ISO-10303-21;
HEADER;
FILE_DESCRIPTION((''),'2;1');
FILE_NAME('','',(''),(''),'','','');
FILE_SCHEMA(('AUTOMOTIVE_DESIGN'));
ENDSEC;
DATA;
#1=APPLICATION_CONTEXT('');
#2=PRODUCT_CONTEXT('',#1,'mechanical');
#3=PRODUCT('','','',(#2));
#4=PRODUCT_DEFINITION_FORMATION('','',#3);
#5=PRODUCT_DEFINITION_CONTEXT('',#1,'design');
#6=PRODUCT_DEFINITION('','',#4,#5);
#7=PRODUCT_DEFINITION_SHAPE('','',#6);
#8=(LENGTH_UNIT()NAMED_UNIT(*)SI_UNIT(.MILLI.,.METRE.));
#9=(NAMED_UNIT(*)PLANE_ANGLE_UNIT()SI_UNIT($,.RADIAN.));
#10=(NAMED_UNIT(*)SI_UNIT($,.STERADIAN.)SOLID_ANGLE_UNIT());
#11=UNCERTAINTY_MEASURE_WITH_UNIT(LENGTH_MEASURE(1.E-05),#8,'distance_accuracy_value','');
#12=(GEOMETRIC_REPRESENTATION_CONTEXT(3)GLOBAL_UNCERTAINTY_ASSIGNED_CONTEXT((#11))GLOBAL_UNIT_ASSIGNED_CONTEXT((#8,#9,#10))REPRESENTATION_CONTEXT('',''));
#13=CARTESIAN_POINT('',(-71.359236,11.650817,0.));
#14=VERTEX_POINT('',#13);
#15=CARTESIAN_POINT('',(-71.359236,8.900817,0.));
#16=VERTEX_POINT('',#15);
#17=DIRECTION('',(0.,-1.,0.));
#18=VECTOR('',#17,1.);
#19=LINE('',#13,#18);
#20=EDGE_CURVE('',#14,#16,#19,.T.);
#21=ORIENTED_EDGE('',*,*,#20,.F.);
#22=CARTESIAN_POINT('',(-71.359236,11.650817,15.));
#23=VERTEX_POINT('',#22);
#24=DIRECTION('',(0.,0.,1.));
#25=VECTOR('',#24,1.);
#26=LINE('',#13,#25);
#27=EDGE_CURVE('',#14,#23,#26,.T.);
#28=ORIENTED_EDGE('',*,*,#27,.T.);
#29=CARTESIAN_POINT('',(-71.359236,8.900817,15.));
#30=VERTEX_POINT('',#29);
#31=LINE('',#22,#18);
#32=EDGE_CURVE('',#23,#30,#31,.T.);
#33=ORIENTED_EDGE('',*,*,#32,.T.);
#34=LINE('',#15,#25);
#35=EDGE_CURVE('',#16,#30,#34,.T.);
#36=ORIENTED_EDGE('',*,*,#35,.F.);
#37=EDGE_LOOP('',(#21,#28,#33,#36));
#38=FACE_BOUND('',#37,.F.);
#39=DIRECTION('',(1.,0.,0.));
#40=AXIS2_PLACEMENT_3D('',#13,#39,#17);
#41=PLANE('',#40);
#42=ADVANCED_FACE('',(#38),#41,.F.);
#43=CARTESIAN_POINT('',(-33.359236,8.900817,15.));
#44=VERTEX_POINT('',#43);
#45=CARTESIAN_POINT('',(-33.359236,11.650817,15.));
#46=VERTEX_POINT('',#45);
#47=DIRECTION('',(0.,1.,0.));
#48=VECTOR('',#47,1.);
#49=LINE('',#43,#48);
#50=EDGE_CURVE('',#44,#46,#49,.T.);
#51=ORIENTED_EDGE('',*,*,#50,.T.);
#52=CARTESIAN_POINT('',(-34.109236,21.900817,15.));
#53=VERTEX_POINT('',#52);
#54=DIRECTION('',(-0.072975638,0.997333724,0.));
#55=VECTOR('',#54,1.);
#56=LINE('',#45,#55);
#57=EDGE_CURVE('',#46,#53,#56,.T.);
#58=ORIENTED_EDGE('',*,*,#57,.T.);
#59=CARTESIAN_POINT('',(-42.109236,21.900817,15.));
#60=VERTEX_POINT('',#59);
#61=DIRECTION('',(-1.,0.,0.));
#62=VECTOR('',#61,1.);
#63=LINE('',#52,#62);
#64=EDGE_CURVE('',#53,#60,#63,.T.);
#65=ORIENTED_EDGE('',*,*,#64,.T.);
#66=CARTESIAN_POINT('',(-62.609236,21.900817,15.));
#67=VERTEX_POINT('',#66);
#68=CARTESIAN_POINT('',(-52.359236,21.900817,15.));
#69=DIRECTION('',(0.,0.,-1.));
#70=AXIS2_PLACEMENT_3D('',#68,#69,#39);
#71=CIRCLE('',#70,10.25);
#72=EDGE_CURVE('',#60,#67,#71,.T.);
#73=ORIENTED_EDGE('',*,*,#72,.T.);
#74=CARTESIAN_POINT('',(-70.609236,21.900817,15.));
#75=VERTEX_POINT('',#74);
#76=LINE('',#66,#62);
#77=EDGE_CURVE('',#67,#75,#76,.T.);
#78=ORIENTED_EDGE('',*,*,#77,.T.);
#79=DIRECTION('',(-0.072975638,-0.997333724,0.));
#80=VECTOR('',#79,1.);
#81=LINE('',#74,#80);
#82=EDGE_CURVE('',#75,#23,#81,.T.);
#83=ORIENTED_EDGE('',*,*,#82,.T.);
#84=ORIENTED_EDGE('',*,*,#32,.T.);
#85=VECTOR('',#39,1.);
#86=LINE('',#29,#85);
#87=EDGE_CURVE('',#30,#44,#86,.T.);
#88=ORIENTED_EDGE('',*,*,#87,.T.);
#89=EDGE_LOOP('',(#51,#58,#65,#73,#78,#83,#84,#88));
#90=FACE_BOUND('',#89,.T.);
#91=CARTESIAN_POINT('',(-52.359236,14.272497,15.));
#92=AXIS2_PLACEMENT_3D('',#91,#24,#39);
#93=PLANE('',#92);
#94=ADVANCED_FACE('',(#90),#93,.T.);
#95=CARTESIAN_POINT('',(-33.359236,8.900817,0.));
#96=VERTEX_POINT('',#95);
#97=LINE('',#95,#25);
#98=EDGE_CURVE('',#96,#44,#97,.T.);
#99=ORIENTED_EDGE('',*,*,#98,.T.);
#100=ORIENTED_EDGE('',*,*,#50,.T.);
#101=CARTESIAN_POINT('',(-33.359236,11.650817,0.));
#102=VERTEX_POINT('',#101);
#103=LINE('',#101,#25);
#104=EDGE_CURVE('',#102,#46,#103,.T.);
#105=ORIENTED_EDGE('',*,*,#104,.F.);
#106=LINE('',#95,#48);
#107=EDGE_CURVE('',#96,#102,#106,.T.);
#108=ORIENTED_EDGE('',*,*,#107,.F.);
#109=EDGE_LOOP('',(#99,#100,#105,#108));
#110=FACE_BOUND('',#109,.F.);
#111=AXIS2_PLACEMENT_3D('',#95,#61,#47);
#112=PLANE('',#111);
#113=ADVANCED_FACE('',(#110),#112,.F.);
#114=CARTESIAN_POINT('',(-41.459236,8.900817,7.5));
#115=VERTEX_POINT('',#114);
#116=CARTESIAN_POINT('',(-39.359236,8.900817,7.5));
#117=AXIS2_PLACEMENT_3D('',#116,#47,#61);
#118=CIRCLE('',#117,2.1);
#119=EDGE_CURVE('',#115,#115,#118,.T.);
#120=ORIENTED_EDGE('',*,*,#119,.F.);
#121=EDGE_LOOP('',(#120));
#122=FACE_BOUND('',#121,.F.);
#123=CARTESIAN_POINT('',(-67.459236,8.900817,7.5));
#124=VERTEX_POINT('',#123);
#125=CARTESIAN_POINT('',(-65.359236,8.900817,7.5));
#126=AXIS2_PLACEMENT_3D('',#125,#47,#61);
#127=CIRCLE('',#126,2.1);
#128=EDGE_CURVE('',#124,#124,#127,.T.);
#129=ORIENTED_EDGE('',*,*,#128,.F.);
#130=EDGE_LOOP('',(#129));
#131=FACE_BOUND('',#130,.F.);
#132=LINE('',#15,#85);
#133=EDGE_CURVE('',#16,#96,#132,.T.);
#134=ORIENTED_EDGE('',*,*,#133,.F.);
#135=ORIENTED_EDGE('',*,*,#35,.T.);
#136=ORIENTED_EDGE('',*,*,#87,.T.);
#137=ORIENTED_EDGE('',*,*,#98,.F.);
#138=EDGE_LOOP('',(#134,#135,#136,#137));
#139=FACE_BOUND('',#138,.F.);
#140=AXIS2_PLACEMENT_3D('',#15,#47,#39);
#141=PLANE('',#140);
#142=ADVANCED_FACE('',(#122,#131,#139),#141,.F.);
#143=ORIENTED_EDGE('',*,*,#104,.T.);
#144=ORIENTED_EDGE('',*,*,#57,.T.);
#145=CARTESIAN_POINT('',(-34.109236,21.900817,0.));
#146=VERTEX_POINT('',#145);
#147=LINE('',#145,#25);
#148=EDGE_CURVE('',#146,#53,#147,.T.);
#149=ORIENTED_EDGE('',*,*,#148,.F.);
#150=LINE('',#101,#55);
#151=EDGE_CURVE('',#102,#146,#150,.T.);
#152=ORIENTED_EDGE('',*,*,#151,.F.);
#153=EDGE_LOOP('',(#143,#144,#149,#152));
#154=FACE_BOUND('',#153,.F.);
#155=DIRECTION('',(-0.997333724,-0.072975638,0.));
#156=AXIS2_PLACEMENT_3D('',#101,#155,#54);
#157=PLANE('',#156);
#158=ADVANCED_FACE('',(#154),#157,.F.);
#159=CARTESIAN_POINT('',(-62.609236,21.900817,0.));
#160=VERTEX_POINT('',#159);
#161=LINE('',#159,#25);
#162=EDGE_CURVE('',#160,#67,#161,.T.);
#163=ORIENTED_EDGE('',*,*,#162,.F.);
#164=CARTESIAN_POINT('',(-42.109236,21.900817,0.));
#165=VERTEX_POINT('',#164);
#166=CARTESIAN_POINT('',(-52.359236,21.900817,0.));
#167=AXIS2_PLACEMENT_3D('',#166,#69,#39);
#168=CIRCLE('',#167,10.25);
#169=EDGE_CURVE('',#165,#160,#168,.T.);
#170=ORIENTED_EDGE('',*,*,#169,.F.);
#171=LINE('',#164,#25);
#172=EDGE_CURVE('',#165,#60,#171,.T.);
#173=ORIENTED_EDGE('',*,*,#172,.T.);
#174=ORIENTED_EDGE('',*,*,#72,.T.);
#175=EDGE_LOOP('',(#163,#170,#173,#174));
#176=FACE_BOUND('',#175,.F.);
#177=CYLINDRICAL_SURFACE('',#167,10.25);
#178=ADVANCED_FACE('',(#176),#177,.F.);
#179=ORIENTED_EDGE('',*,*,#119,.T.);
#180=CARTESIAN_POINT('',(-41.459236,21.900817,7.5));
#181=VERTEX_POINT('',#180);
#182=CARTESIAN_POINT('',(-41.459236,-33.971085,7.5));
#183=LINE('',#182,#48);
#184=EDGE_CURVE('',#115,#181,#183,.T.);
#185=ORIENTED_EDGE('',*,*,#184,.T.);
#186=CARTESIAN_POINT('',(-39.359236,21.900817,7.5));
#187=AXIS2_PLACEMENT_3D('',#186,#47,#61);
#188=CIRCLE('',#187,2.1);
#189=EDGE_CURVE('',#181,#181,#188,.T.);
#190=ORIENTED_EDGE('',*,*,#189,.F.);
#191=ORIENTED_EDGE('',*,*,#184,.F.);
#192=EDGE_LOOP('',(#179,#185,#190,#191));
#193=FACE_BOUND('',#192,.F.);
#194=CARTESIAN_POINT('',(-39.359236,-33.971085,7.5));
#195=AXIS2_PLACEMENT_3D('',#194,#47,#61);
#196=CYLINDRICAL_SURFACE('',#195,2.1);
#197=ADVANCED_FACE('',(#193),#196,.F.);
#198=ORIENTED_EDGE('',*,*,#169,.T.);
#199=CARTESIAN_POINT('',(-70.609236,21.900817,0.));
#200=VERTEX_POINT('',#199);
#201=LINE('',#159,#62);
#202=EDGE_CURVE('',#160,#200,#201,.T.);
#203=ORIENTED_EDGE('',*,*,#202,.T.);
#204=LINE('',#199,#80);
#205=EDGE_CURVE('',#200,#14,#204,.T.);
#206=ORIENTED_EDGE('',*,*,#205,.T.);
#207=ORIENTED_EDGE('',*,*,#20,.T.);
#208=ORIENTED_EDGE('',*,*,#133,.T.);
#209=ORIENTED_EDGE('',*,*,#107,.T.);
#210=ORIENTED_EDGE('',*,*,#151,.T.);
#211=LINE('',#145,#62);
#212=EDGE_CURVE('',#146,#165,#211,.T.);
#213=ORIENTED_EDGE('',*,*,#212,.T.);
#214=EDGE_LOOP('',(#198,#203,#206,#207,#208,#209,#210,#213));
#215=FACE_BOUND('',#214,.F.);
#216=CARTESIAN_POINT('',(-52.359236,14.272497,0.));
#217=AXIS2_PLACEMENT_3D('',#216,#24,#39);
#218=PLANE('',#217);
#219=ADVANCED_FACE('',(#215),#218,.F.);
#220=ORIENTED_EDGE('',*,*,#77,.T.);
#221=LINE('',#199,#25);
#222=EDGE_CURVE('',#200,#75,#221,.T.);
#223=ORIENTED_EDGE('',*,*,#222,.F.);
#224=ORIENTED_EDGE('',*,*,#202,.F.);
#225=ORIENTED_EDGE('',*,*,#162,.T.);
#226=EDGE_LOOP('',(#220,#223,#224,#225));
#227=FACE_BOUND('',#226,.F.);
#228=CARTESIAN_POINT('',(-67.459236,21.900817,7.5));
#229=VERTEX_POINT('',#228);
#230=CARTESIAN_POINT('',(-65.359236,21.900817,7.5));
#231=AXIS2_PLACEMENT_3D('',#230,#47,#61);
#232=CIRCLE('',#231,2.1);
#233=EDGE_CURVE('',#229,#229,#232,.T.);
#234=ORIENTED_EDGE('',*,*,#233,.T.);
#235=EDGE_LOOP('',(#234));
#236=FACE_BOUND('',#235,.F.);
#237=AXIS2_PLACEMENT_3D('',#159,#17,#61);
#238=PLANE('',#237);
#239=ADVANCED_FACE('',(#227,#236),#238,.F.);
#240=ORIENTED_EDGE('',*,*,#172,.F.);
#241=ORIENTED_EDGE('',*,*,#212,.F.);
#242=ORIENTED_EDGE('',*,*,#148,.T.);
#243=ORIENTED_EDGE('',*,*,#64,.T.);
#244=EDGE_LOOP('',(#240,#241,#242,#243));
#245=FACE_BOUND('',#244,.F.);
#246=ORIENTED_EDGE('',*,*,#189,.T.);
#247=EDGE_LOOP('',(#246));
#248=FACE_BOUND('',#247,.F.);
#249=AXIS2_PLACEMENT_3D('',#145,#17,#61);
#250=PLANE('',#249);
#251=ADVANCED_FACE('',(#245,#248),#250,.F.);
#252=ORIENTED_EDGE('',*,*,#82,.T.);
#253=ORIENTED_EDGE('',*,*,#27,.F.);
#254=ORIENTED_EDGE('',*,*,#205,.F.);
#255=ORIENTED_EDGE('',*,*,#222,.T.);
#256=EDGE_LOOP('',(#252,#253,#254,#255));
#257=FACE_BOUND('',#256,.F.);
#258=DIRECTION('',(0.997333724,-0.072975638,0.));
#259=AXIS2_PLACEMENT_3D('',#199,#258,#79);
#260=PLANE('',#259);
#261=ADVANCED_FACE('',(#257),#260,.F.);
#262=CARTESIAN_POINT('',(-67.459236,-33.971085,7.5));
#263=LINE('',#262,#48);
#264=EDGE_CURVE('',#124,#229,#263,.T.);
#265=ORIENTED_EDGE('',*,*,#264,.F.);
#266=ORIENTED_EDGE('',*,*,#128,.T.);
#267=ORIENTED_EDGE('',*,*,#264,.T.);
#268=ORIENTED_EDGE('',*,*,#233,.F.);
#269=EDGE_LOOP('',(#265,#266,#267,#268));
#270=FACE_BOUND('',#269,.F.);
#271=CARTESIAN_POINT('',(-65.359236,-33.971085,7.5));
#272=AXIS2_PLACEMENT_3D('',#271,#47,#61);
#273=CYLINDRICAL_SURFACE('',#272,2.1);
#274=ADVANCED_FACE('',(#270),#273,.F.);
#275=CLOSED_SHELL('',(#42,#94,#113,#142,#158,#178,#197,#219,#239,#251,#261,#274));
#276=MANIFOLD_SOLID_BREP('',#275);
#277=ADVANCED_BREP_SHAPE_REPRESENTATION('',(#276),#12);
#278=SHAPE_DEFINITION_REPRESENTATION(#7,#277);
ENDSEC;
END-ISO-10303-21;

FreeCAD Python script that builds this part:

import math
import FreeCAD as App
import Part
import Sketcher

V = App.Vector
Q = App.Units.Quantity

doc = App.newDocument("Part")
body = doc.addObject("PartDesign::Body", "Body")

# Sketch on XY plane
sketch1 = body.newObject("Sketcher::SketchObject", "Sketch")
sketch1.AttachmentSupport = (doc.getObject("XY_Plane"), [""])
sketch1.MapMode = "FlatFace"
sketch1.addGeometry(Part.LineSegment(V(-71.4, 11.7, 0), V(-71.4, 8.9, 0)), False)
sketch1.addGeometry(Part.LineSegment(V(-71.4, 8.9, 0), V(-33.4, 8.9, 0)), False)
sketch1.addGeometry(Part.LineSegment(V(-33.4, 8.9, 0), V(-33.4, 11.7, 0)), False)
sketch1.addGeometry(Part.LineSegment(V(-33.4, 11.7, 0), V(-34.1, 21.9, 0)), False)
sketch1.addGeometry(Part.LineSegment(V(-34.1, 21.9, 0), V(-42.1, 21.9, 0)), False)
sketch1.addGeometry(Part.ArcOfCircle(Part.Circle(V(-52.4, 21.9, 0), V(0, 0, 1), 10.2), math.radians(180), math.radians(360)), False)
sketch1.addGeometry(Part.LineSegment(V(-62.6, 21.9, 0), V(-70.6, 21.9, 0)), False)
sketch1.addGeometry(Part.LineSegment(V(-70.6, 21.9, 0), V(-71.4, 11.7, 0)), False)
sketch1.addConstraint(Sketcher.Constraint("Coincident", 0, 2, 1, 1))
sketch1.addConstraint(Sketcher.Constraint("Coincident", 1, 2, 2, 1))
sketch1.addConstraint(Sketcher.Constraint("Coincident", 2, 2, 3, 1))
sketch1.addConstraint(Sketcher.Constraint("Coincident", 3, 2, 4, 1))
sketch1.addConstraint(Sketcher.Constraint("Coincident", 4, 2, 5, 2))
sketch1.addConstraint(Sketcher.Constraint("Coincident", 5, 1, 6, 1))
sketch1.addConstraint(Sketcher.Constraint("Coincident", 6, 2, 7, 1))
sketch1.addConstraint(Sketcher.Constraint("Coincident", 7, 2, 0, 1))
sketch1.addConstraint(Sketcher.Constraint("Vertical", 0))
sketch1.addConstraint(Sketcher.Constraint("Horizontal", 1))
sketch1.addConstraint(Sketcher.Constraint("Vertical", 2))
sketch1.addConstraint(Sketcher.Constraint("Horizontal", 4))
sketch1.addConstraint(Sketcher.Constraint("Horizontal", 6))
sketch1.addConstraint(Sketcher.Constraint("Horizontal", 5, 3, 3, 2))
sketch1.addConstraint(Sketcher.Constraint("Horizontal", 4, 2, 5, 1))
sketch1.addConstraint(Sketcher.Constraint("Horizontal", 2, 2, 7, 2))
sketch1.addConstraint(Sketcher.Constraint("Equal", 4, 6))
sketch1.addConstraint(Sketcher.Constraint("Equal", 3, 7))
sketch1.addConstraint(Sketcher.Constraint("DistanceX", 1, 1, 1, 2, Q("38 mm")))
sketch1.addConstraint(Sketcher.Constraint("DistanceX", 4, 2, 4, 1, Q("8 mm")))
sketch1.addConstraint(Sketcher.Constraint("Radius", 5, Q("10.25 mm")))
sketch1.addConstraint(Sketcher.Constraint("DistanceY", 0, 2, 5, 3, Q("13 mm")))
sketch1.addConstraint(Sketcher.Constraint("DistanceY", 0, 2, 0, 1, Q("2.75 mm")))
sketch1.addConstraint(Sketcher.Constraint("DistanceX", 5, 3, -1, 1, Q("52.359236 mm")))
sketch1.addConstraint(Sketcher.Constraint("DistanceY", -1, 1, 5, 3, Q("21.900817 mm")))
pad1 = body.newObject("PartDesign::Pad", "Pad")
pad1.Profile = sketch1
pad1.Length = 15

# Sketch on XZ plane
sketch2 = body.newObject("Sketcher::SketchObject", "Sketch001")
sketch2.AttachmentSupport = (doc.getObject("XZ_Plane"), [""])
sketch2.MapMode = "FlatFace"
sketch2.AttachmentOffset = App.Placement(V(0, 0, -8.900817), App.Rotation())
sketch2.addGeometry(Part.Circle(V(-65.4, 7.5, 0), V(0, 0, 1), 2.1), False)
sketch2.addGeometry(Part.Circle(V(-39.4, 7.5, 0), V(0, 0, 1), 2.1), False)
sketch2.addConstraint(Sketcher.Constraint("Equal", 0, 1))
sketch2.addConstraint(Sketcher.Constraint("Horizontal", 0, 3, 1, 3))
sketch2.addConstraint(Sketcher.Constraint("Diameter", 0, Q("4.2 mm")))
sketch2.addConstraint(Sketcher.Constraint("DistanceX", 0, 3, 1, 3, Q("26 mm")))
sketch2.addConstraint(Sketcher.Constraint("DistanceY", -1, 1, 0, 3, Q("7.5 mm")))
sketch2.addConstraint(Sketcher.Constraint("DistanceX", 0, 3, -1, 1, Q("65.359236 mm")))
doc.recompute()
hole = body.newObject("PartDesign::Hole", "Hole")
hole.Profile = sketch2
hole.ThreadType = "None"
hole.Diameter = 4.2
hole.DepthType = "ThroughAll"

doc.recompute()
